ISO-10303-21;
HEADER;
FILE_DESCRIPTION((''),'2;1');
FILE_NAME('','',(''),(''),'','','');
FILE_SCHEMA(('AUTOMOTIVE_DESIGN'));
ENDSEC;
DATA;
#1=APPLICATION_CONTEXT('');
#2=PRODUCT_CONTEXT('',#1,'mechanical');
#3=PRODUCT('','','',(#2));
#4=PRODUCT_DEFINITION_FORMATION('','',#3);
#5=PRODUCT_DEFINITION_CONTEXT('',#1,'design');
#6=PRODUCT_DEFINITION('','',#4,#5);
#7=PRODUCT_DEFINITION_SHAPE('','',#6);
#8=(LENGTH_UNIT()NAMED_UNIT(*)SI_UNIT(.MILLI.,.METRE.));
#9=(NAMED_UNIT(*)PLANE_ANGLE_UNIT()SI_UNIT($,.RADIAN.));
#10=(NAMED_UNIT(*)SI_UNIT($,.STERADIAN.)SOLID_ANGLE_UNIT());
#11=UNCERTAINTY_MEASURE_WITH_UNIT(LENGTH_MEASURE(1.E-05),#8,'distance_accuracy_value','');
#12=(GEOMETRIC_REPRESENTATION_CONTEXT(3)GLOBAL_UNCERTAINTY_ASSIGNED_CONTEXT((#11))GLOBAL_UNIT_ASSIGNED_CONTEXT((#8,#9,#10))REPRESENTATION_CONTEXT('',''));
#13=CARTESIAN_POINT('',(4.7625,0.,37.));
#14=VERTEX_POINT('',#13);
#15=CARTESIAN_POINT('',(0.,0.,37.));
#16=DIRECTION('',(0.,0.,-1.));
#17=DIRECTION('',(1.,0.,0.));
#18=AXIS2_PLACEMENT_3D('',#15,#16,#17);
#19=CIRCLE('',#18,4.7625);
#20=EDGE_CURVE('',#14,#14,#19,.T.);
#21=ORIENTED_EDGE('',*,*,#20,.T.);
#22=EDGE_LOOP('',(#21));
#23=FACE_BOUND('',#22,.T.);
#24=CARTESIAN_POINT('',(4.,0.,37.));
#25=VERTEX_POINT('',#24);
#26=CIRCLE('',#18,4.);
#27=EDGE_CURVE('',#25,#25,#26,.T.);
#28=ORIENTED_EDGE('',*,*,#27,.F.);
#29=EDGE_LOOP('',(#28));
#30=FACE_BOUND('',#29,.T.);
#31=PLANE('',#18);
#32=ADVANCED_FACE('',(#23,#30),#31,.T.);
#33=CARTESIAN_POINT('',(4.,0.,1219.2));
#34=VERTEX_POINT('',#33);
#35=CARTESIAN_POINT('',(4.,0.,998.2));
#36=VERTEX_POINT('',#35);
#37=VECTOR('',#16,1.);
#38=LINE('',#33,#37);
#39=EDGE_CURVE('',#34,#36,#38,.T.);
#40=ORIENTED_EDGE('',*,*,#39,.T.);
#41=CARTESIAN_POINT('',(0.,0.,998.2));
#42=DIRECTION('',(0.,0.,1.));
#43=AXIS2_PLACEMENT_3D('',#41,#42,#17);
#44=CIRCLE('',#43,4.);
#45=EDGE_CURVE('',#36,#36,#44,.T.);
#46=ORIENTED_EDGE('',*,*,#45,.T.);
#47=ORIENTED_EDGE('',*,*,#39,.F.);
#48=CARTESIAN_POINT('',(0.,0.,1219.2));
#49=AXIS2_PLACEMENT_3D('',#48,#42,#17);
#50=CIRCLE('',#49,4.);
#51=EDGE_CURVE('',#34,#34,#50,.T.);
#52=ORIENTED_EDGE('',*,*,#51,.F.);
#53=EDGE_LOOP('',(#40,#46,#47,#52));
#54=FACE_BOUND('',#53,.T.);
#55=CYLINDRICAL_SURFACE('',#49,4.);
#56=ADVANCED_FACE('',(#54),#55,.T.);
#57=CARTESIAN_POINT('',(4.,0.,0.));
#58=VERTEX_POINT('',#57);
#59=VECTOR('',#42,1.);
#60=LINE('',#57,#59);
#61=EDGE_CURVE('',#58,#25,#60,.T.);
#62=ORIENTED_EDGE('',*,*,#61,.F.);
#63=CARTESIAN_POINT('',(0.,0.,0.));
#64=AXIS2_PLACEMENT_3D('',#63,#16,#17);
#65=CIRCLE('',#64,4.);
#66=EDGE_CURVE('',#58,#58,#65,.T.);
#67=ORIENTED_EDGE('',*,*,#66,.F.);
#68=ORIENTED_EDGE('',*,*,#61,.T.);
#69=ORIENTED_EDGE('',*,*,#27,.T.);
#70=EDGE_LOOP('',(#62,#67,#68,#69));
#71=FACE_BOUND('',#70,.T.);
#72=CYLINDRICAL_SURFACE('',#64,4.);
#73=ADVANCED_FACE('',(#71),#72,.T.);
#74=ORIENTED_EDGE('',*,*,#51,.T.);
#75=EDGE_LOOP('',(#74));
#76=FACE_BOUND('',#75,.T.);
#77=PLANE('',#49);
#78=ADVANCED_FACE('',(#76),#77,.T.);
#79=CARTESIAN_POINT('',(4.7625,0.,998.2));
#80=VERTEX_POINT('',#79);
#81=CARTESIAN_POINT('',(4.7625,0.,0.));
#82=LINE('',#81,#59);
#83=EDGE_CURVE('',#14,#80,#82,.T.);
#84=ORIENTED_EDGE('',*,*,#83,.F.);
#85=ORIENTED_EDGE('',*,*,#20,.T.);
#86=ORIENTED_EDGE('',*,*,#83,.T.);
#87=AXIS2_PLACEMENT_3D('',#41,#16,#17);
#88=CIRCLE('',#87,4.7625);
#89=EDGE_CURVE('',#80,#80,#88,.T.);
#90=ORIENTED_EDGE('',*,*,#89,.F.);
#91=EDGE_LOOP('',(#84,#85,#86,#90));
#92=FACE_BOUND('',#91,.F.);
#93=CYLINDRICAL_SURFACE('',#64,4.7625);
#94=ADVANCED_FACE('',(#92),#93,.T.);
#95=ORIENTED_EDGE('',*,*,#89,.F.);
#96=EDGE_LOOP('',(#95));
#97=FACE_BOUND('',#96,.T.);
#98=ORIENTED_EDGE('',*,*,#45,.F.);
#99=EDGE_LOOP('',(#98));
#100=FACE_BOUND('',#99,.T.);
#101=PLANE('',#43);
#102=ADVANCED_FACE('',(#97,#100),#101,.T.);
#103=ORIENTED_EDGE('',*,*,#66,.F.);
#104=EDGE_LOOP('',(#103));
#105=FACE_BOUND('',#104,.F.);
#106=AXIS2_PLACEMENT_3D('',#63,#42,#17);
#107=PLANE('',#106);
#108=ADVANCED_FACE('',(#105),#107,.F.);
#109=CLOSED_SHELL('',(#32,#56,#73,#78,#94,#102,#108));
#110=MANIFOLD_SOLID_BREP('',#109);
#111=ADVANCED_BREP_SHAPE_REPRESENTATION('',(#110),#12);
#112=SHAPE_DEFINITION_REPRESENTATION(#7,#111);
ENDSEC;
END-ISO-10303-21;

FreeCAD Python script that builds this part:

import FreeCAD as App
import Part
import Sketcher

V = App.Vector

doc = App.newDocument("Part")
params = doc.addObject("Spreadsheet::Sheet", "Params")
for row, (alias, value) in enumerate([
    ("pad1_length", "1219.2 mm"),
    ("sketch2_diameter", "12 mm"),
    ("sketch2_diameter2", "8 mm"),
    ("pocket1_length", "37 mm"),
    ("sketch3_diameter", "12 mm"),
    ("sketch3_diameter2", "8 mm"),
    ("pocket2_length", "221 mm"),
], start=1):
    params.set(f"A{row}", alias)
    params.set(f"B{row}", "=" + value)
    params.setAlias(f"B{row}", alias)

body = doc.addObject("PartDesign::Body", "Body")

sketch1 = body.newObject("Sketcher::SketchObject", "Sketch")
sketch1.AttachmentSupport = (doc.getObject("XY_Plane"), [""])
sketch1.MapMode = "FlatFace"
sketch1.addGeometry(Part.Circle(V(0, 0, 0), V(0, 0, 1), 4.8), False)
sketch1.addConstraint(Sketcher.Constraint("Coincident", 0, 3, -1, 1))
sketch1.addConstraint(Sketcher.Constraint("Diameter", 0, 9.525))
pad1 = body.newObject("PartDesign::Pad", "Pad")
pad1.Profile = sketch1
pad1.setExpression("Length", "Params.pad1_length")

sketch2 = body.newObject("Sketcher::SketchObject", "Sketch001")
sketch2.AttachmentSupport = (doc.getObject("XY_Plane"), [""])
sketch2.MapMode = "FlatFace"
sketch2.addGeometry(Part.Circle(V(0, 0, 0), V(0, 0, 1), 6), False)
sketch2.addGeometry(Part.Circle(V(0, 0, 0), V(0, 0, 1), 4), False)
sketch2.addConstraint(Sketcher.Constraint("Coincident", 0, 3, -1, 1))
sketch2.addConstraint(Sketcher.Constraint("Coincident", 1, 3, -1, 1))
sketch2.addConstraint(Sketcher.Constraint("Diameter", 0, 12.0))
sketch2.addConstraint(Sketcher.Constraint("Diameter", 1, 8.0))
sketch2.setExpression("Constraints[2]", "Params.sketch2_diameter")
sketch2.setExpression("Constraints[3]", "Params.sketch2_diameter2")
pocket1 = body.newObject("PartDesign::Pocket", "Pocket")
pocket1.Profile = sketch2
pocket1.setExpression("Length", "Params.pocket1_length")
pocket1.Reversed = True

sketch3 = body.newObject("Sketcher::SketchObject", "Sketch002")
sketch3.AttachmentSupport = (doc.getObject("XY_Plane"), [""])
sketch3.MapMode = "FlatFace"
sketch3.AttachmentOffset = App.Placement(V(0, 0, 1219.2), App.Rotation())
sketch3.addGeometry(Part.Circle(V(0, 0, 0), V(0, 0, 1), 6), False)
sketch3.addGeometry(Part.Circle(V(0, 0, 0), V(0, 0, 1), 4), False)
sketch3.addConstraint(Sketcher.Constraint("Coincident", 0, 3, -1, 1))
sketch3.addConstraint(Sketcher.Constraint("Coincident", 1, 3, -1, 1))
sketch3.addConstraint(Sketcher.Constraint("Diameter", 0, 12.0))
sketch3.addConstraint(Sketcher.Constraint("Diameter", 1, 8.0))
sketch3.setExpression("Constraints[2]", "Params.sketch3_diameter")
sketch3.setExpression("Constraints[3]", "Params.sketch3_diameter2")
pocket2 = body.newObject("PartDesign::Pocket", "Pocket001")
pocket2.Profile = sketch3
pocket2.setExpression("Length", "Params.pocket2_length")

doc.recompute()
